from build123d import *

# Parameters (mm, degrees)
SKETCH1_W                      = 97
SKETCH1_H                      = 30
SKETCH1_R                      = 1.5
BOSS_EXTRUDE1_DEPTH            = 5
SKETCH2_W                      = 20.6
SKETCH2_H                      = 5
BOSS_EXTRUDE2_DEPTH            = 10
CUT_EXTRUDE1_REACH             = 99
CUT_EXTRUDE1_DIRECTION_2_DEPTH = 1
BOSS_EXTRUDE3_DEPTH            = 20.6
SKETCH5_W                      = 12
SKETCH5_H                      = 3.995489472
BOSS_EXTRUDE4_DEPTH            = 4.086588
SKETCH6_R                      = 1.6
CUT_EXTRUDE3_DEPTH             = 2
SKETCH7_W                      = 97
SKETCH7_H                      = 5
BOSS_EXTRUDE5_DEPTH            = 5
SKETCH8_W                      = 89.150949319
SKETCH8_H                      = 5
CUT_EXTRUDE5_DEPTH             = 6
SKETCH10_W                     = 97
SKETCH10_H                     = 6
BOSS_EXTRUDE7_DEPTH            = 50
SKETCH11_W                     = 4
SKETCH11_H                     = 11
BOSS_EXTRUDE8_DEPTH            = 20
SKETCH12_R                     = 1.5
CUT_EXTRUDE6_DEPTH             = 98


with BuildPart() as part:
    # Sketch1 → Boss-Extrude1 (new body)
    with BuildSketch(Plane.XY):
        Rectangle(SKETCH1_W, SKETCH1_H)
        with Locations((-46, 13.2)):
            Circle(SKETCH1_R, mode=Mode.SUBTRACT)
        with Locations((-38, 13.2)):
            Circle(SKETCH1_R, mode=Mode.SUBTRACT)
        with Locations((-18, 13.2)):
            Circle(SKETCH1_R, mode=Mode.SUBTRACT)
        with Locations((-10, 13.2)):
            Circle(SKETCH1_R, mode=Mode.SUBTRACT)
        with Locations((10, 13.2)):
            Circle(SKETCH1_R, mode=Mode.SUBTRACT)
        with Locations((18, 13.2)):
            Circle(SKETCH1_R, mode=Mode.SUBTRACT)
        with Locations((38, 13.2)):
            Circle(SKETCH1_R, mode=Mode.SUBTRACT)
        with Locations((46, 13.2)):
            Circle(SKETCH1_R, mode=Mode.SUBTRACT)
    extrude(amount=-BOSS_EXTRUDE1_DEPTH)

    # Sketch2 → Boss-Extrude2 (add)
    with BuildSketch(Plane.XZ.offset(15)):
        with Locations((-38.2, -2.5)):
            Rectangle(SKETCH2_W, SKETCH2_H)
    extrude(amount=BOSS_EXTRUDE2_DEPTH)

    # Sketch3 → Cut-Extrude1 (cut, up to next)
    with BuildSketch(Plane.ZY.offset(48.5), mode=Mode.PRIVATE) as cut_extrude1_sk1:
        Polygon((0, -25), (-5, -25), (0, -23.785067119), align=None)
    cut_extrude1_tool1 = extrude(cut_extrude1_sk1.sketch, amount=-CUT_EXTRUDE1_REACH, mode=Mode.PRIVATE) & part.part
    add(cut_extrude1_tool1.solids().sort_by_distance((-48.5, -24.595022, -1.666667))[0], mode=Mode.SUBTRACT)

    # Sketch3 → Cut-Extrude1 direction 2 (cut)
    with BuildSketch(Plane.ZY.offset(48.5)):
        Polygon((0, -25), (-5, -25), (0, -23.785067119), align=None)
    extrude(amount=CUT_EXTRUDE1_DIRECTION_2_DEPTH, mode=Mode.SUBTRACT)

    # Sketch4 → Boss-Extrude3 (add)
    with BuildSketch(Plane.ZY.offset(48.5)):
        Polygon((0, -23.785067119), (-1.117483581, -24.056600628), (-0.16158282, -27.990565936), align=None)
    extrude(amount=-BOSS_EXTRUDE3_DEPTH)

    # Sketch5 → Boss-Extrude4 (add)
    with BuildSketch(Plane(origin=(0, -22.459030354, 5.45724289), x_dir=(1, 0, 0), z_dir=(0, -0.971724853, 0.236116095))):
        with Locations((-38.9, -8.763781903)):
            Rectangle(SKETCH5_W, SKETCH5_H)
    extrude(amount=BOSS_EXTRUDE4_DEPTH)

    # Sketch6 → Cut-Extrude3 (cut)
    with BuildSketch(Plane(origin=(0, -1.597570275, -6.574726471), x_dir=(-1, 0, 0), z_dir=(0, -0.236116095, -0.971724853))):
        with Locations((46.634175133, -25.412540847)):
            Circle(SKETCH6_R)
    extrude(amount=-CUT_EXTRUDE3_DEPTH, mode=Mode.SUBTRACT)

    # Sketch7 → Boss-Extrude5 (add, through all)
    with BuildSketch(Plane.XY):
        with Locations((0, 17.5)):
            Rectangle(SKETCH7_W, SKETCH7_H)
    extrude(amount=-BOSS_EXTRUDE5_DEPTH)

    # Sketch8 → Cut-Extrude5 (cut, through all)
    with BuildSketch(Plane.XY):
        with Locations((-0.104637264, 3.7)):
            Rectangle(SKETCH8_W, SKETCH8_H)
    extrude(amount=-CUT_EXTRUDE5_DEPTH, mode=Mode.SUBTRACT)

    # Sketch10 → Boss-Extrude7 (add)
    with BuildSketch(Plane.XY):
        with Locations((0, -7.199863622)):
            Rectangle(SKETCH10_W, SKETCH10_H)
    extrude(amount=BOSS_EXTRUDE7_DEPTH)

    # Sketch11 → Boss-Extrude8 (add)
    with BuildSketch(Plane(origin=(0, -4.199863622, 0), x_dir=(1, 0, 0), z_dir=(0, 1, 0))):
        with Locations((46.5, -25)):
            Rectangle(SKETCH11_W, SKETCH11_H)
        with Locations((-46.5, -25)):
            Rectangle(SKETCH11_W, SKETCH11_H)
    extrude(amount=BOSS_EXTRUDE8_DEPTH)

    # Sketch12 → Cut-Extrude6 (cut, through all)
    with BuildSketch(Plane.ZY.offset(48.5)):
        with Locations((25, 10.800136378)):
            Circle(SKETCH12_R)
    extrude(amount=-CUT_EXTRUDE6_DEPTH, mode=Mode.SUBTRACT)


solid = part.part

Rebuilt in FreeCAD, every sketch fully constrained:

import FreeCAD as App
import Part
import Sketcher
from FreeCAD import Vector

doc = App.newDocument("Part")
body = doc.addObject("PartDesign::Body", "Body")

sketch1 = body.newObject("Sketcher::SketchObject", "Sketch")
sketch1.AttachmentSupport = (doc.getObject("XY_Plane"), [""])
sketch1.MapMode = "FlatFace"
sketch1.addGeometry([
    Part.LineSegment(Vector(-48.5, 15, 0), Vector(-48.5, -15, 0)),
    Part.LineSegment(Vector(-48.5, -15, 0), Vector(48.5, -15, 0)),
    Part.LineSegment(Vector(48.5, -15, 0), Vector(48.5, 15, 0)),
    Part.LineSegment(Vector(48.5, 15, 0), Vector(-48.5, 15, 0)),
    Part.Circle(Vector(-46, 13.2, 0), Vector(0, 0, 1), 1.5),
    Part.Circle(Vector(-38, 13.2, 0), Vector(0, 0, 1), 1.5),
    Part.Circle(Vector(-18, 13.2, 0), Vector(0, 0, 1), 1.5),
    Part.Circle(Vector(-10, 13.2, 0), Vector(0, 0, 1), 1.5),
    Part.Circle(Vector(10, 13.2, 0), Vector(0, 0, 1), 1.5),
    Part.Circle(Vector(18, 13.2, 0), Vector(0, 0, 1), 1.5),
    Part.Circle(Vector(38, 13.2, 0), Vector(0, 0, 1), 1.5),
    Part.Circle(Vector(46, 13.2, 0), Vector(0, 0, 1), 1.5),
], False)
sketch1.addConstraint([
    Sketcher.Constraint("Coincident", 0, 2, 1, 1),
    Sketcher.Constraint("Coincident", 1, 2, 2, 1),
    Sketcher.Constraint("Coincident", 2, 2, 3, 1),
    Sketcher.Constraint("Coincident", 3, 2, 0, 1),
    Sketcher.Constraint("Vertical", 0),
    Sketcher.Constraint("Horizontal", 1),
    Sketcher.Constraint("Vertical", 2),
    Sketcher.Constraint("Horizontal", 3),
    Sketcher.Constraint("Equal", 4, 5),
    Sketcher.Constraint("Equal", 5, 6),
    Sketcher.Constraint("Equal", 6, 7),
    Sketcher.Constraint("Equal", 7, 8),
    Sketcher.Constraint("Equal", 8, 9),
    Sketcher.Constraint("Equal", 9, 10),
    Sketcher.Constraint("Equal", 10, 11),
    Sketcher.Constraint("Symmetric", 0, 2, 2, 2, -1, 1),
    Sketcher.Constraint("Symmetric", 7, 3, 8, 3, -2),
    Sketcher.Constraint("Symmetric", 6, 3, 9, 3, -2),
    Sketcher.Constraint("Symmetric", 5, 3, 10, 3, -2),
    Sketcher.Constraint("Symmetric", 4, 3, 11, 3, -2),
    Sketcher.Constraint("Horizontal", 4, 3, 5, 3),
    Sketcher.Constraint("Horizontal", 5, 3, 6, 3),
    Sketcher.Constraint("Horizontal", 6, 3, 7, 3),
    Sketcher.Constraint("Diameter", 4, 3.0),
    Sketcher.Constraint("DistanceX", 1, 1, 1, 2, 97.0),
    Sketcher.Constraint("DistanceY", 0, 2, 0, 1, 30.0),
    Sketcher.Constraint("DistanceX", 4, 3, -1, 1, 46.0),
    Sketcher.Constraint("DistanceX", 5, 3, -1, 1, 38.0),
    Sketcher.Constraint("DistanceX", 6, 3, -1, 1, 18.0),
    Sketcher.Constraint("DistanceX", 7, 3, -1, 1, 10.0),
    Sketcher.Constraint("DistanceY", -1, 1, 4, 3, 13.2),
])
pad1 = body.newObject("PartDesign::Pad", "Pad")
pad1.Profile = sketch1
pad1.Length = 5
pad1.Reversed = True

sketch2 = body.newObject("Sketcher::SketchObject", "Sketch001")
sketch2.AttachmentSupport = (doc.getObject("XZ_Plane"), [""])
sketch2.MapMode = "FlatFace"
sketch2.AttachmentOffset = App.Placement(Vector(0, 0, 15), App.Rotation())
sketch2.addGeometry([
    Part.LineSegment(Vector(-48, 0, 0), Vector(-48, -5, 0)),
    Part.LineSegment(Vector(-48, -5, 0), Vector(-28, -5, 0)),
    Part.LineSegment(Vector(-28, -5, 0), Vector(-28, 0, 0)),
    Part.LineSegment(Vector(-28, 0, 0), Vector(-48, 0, 0)),
], False)
sketch2.addConstraint([
    Sketcher.Constraint("Coincident", 0, 2, 1, 1),
    Sketcher.Constraint("Coincident", 1, 2, 2, 1),
    Sketcher.Constraint("Coincident", 2, 2, 3, 1),
    Sketcher.Constraint("Coincident", 3, 2, 0, 1),
    Sketcher.Constraint("Vertical", 0),
    Sketcher.Constraint("Horizontal", 1),
    Sketcher.Constraint("Vertical", 2),
    Sketcher.Constraint("Horizontal", 3),
    Sketcher.Constraint("PointOnObject", 2, 2, -1),
    Sketcher.Constraint("DistanceY", 0, 2, 0, 1, 5.0),
    Sketcher.Constraint("DistanceX", 1, 1, 1, 2, 20.6),
    Sketcher.Constraint("DistanceX", 0, 2, -1, 1, 48.5),
])
pad2 = body.newObject("PartDesign::Pad", "Pad001")
pad2.Profile = sketch2
pad2.Length = 10

sketch3 = body.newObject("Sketcher::SketchObject", "Sketch002")
sketch3.AttachmentSupport = (doc.getObject("YZ_Plane"), [""])
sketch3.MapMode = "FlatFace"
sketch3.AttachmentOffset = App.Placement(Vector(0, 0, -48.5), App.Rotation())
sketch3.addGeometry([
    Part.LineSegment(Vector(-25, -5, 0), Vector(-25, 0, 0)),
    Part.LineSegment(Vector(-25, 0, 0), Vector(-23.8, 0, 0)),
    Part.LineSegment(Vector(-23.8, 0, 0), Vector(-25, -5, 0)),
], False)
sketch3.addConstraint([
    Sketcher.Constraint("Coincident", 0, 2, 1, 1),
    Sketcher.Constraint("Coincident", 1, 2, 2, 1),
    Sketcher.Constraint("Coincident", 2, 2, 0, 1),
    Sketcher.Constraint("Vertical", 0),
    Sketcher.Constraint("Horizontal", 1),
    Sketcher.Constraint("PointOnObject", 0, 2, -1),
    Sketcher.Constraint("DistanceY", 0, 1, 0, 2, 5.0),
    Sketcher.Constraint("DistanceX", 0, 2, -1, 1, 25.0),
    Sketcher.Constraint("Distance", 2, 5.145489),
])
pocket1 = body.newObject("PartDesign::Pocket", "Pocket")
pocket1.Profile = sketch3
pocket1.Type = "UpToFirst"
pocket1.Reversed = True

sketch4 = body.newObject("Sketcher::SketchObject", "Sketch003")
sketch4.AttachmentSupport = (doc.getObject("YZ_Plane"), [""])
sketch4.MapMode = "FlatFace"
sketch4.AttachmentOffset = App.Placement(Vector(0, 0, -48.5), App.Rotation())
sketch4.addGeometry([
    Part.LineSegment(Vector(-25, -5, 0), Vector(-25, 0, 0)),
    Part.LineSegment(Vector(-25, 0, 0), Vector(-23.8, 0, 0)),
    Part.LineSegment(Vector(-23.8, 0, 0), Vector(-25, -5, 0)),
], False)
sketch4.addConstraint([
    Sketcher.Constraint("Coincident", 0, 2, 1, 1),
    Sketcher.Constraint("Coincident", 1, 2, 2, 1),
    Sketcher.Constraint("Coincident", 2, 2, 0, 1),
    Sketcher.Constraint("Vertical", 0),
    Sketcher.Constraint("Horizontal", 1),
    Sketcher.Constraint("PointOnObject", 0, 2, -1),
    Sketcher.Constraint("DistanceY", 0, 1, 0, 2, 5.0),
    Sketcher.Constraint("DistanceX", 0, 2, -1, 1, 25.0),
    Sketcher.Constraint("Distance", 2, 5.145489),
])
pocket2 = body.newObject("PartDesign::Pocket", "Pocket001")
pocket2.Profile = sketch4
pocket2.Length = 1

sketch5 = body.newObject("Sketcher::SketchObject", "Sketch004")
sketch5.AttachmentSupport = (doc.getObject("YZ_Plane"), [""])
sketch5.MapMode = "FlatFace"
sketch5.AttachmentOffset = App.Placement(Vector(0, 0, -48.5), App.Rotation())
sketch5.addGeometry([
    Part.LineSegment(Vector(-23.8, 0, 0), Vector(-24.1, -1.1, 0)),
    Part.LineSegment(Vector(-24.1, -1.1, 0), Vector(-28, -0.2, 0)),
    Part.LineSegment(Vector(-28, -0.2, 0), Vector(-23.8, 0, 0)),
], False)
sketch5.addConstraint([
    Sketcher.Constraint("Coincident", 0, 2, 1, 1),
    Sketcher.Constraint("Coincident", 1, 2, 2, 1),
    Sketcher.Constraint("Coincident", 2, 2, 0, 1),
    Sketcher.Constraint("PointOnObject", 2, 2, -1),
    Sketcher.Constraint("Perpendicular", 0, 1),
    Sketcher.Constraint("Distance", 0, 1.15),
    Sketcher.Constraint("Distance", 2, 4.208602),
    Sketcher.Constraint("DistanceX", 0, 2, -1, 1, 24.056601),
    Sketcher.Constraint("DistanceY", 0, 2, 1, 2, 0.955901),
])
pad3 = body.newObject("PartDesign::Pad", "Pad002")
pad3.Profile = sketch5
pad3.Length = 20.6

sketch6 = body.newObject("Sketcher::SketchObject", "Sketch005")
sketch6.Placement = App.Placement(Vector(0, -22.45903, 5.457243), App.Rotation(Vector(1, 0, 0), Vector(0, 0.236116095, 0.971724853), Vector(0, -0.971724853, 0.236116095), "ZXY"))
sketch6.addGeometry([
    Part.LineSegment(Vector(-44.9, -6.8, 0), Vector(-44.9, -10.8, 0)),
    Part.LineSegment(Vector(-44.9, -10.8, 0), Vector(-32.9, -10.8, 0)),
    Part.LineSegment(Vector(-32.9, -10.8, 0), Vector(-32.9, -6.8, 0)),
    Part.LineSegment(Vector(-32.9, -6.8, 0), Vector(-44.9, -6.8, 0)),
], False)
sketch6.addConstraint([
    Sketcher.Constraint("Coincident", 0, 2, 1, 1),
    Sketcher.Constraint("Coincident", 1, 2, 2, 1),
    Sketcher.Constraint("Coincident", 2, 2, 3, 1),
    Sketcher.Constraint("Coincident", 3, 2, 0, 1),
    Sketcher.Constraint("Vertical", 0),
    Sketcher.Constraint("Horizontal", 1),
    Sketcher.Constraint("Vertical", 2),
    Sketcher.Constraint("Horizontal", 3),
    Sketcher.Constraint("DistanceX", 1, 1, 1, 2, 12.0),
    Sketcher.Constraint("DistanceX", 0, 2, -1, 1, 44.9),
    Sketcher.Constraint("DistanceY", 0, 2, 0, 1, 3.995489),
    Sketcher.Constraint("DistanceY", 0, 2, -1, 1, 10.761527),
])
pad4 = body.newObject("PartDesign::Pad", "Pad003")
pad4.Profile = sketch6
pad4.Length = 4.086588

sketch7 = body.newObject("Sketcher::SketchObject", "Sketch006")
sketch7.Placement = App.Placement(Vector(0, -1.59757, -6.574726), App.Rotation(Vector(-1, 0, 0), Vector(0, 0.971724853, -0.236116095), Vector(0, -0.236116095, -0.971724853), "ZXY"))
sketch7.addGeometry(Part.Circle(Vector(46.6, -25.4, 0), Vector(0, 0, 1), 1.6), False)
sketch7.addConstraint([
    Sketcher.Constraint("Diameter", 0, 3.2),
    Sketcher.Constraint("DistanceY", 0, 3, -1, 1, 25.412541),
    Sketcher.Constraint("DistanceX", -1, 1, 0, 3, 46.634175),
])
pocket3 = body.newObject("PartDesign::Pocket", "Pocket002")
pocket3.Profile = sketch7
pocket3.Length = 2

sketch8 = body.newObject("Sketcher::SketchObject", "Sketch007")
sketch8.AttachmentSupport = (doc.getObject("XY_Plane"), [""])
sketch8.MapMode = "FlatFace"
sketch8.addGeometry([
    Part.LineSegment(Vector(-48, 20, 0), Vector(-48, 15, 0)),
    Part.LineSegment(Vector(-48, 15, 0), Vector(48, 15, 0)),
    Part.LineSegment(Vector(48, 15, 0), Vector(48, 20, 0)),
    Part.LineSegment(Vector(48, 20, 0), Vector(-48, 20, 0)),
], False)
sketch8.addConstraint([
    Sketcher.Constraint("Coincident", 0, 2, 1, 1),
    Sketcher.Constraint("Coincident", 1, 2, 2, 1),
    Sketcher.Constraint("Coincident", 2, 2, 3, 1),
    Sketcher.Constraint("Coincident", 3, 2, 0, 1),
    Sketcher.Constraint("Vertical", 0),
    Sketcher.Constraint("Horizontal", 1),
    Sketcher.Constraint("Vertical", 2),
    Sketcher.Constraint("Horizontal", 3),
    Sketcher.Constraint("DistanceX", 1, 1, 1, 2, 97.0),
    Sketcher.Constraint("DistanceY", 0, 2, 0, 1, 5.0),
    Sketcher.Constraint("DistanceY", -1, 1, 0, 2, 15.0),
    Sketcher.Constraint("DistanceX", 0, 2, -1, 1, 48.5),
])
pad5 = body.newObject("PartDesign::Pad", "Pad004")
pad5.Profile = sketch8
pad5.Length = 5
pad5.Reversed = True

sketch9 = body.newObject("Sketcher::SketchObject", "Sketch008")
sketch9.AttachmentSupport = (doc.getObject("XY_Plane"), [""])
sketch9.MapMode = "FlatFace"
sketch9.addGeometry([
    Part.LineSegment(Vector(-45, 6, 0), Vector(-45, 1, 0)),
    Part.LineSegment(Vector(-45, 1, 0), Vector(44, 1, 0)),
    Part.LineSegment(Vector(44, 1, 0), Vector(44, 6, 0)),
    Part.LineSegment(Vector(44, 6, 0), Vector(-45, 6, 0)),
], False)
sketch9.addConstraint([
    Sketcher.Constraint("Coincident", 0, 2, 1, 1),
    Sketcher.Constraint("Coincident", 1, 2, 2, 1),
    Sketcher.Constraint("Coincident", 2, 2, 3, 1),
    Sketcher.Constraint("Coincident", 3, 2, 0, 1),
    Sketcher.Constraint("Vertical", 0),
    Sketcher.Constraint("Horizontal", 1),
    Sketcher.Constraint("Vertical", 2),
    Sketcher.Constraint("Horizontal", 3),
    Sketcher.Constraint("DistanceY", 0, 2, 0, 1, 5.0),
    Sketcher.Constraint("DistanceY", -1, 1, 0, 2, 1.2),
    Sketcher.Constraint("DistanceX", 1, 1, 1, 2, 89.150949),
    Sketcher.Constraint("DistanceX", 0, 2, -1, 1, 44.680112),
])
pocket4 = body.newObject("PartDesign::Pocket", "Pocket003")
pocket4.Profile = sketch9
pocket4.Type = "ThroughAll"

sketch10 = body.newObject("Sketcher::SketchObject", "Sketch009")
sketch10.AttachmentSupport = (doc.getObject("XY_Plane"), [""])
sketch10.MapMode = "FlatFace"
sketch10.addGeometry([
    Part.LineSegment(Vector(-48, -4, 0), Vector(-48, -10, 0)),
    Part.LineSegment(Vector(-48, -10, 0), Vector(48, -10, 0)),
    Part.LineSegment(Vector(48, -10, 0), Vector(48, -4, 0)),
    Part.LineSegment(Vector(48, -4, 0), Vector(-48, -4, 0)),
], False)
sketch10.addConstraint([
    Sketcher.Constraint("Coincident", 0, 2, 1, 1),
    Sketcher.Constraint("Coincident", 1, 2, 2, 1),
    Sketcher.Constraint("Coincident", 2, 2, 3, 1),
    Sketcher.Constraint("Coincident", 3, 2, 0, 1),
    Sketcher.Constraint("Vertical", 0),
    Sketcher.Constraint("Horizontal", 1),
    Sketcher.Constraint("Vertical", 2),
    Sketcher.Constraint("Horizontal", 3),
    Sketcher.Constraint("DistanceX", 1, 1, 1, 2, 97.0),
    Sketcher.Constraint("DistanceY", 0, 2, 0, 1, 6.0),
    Sketcher.Constraint("DistanceX", 0, 2, -1, 1, 48.5),
    Sketcher.Constraint("DistanceY", 0, 2, -1, 1, 10.199864),
])
pad6 = body.newObject("PartDesign::Pad", "Pad005")
pad6.Profile = sketch10
pad6.Length = 50

sketch11 = body.newObject("Sketcher::SketchObject", "Sketch010")
sketch11.AttachmentSupport = (doc.getObject("XZ_Plane"), [""])
sketch11.MapMode = "FlatFace"
sketch11.AttachmentOffset = App.Placement(Vector(0, 0, 4.199864), App.Rotation())
sketch11.addGeometry([
    Part.LineSegment(Vector(44.5, 19.5, 0), Vector(44.5, 30.5, 0)),
    Part.LineSegment(Vector(44.5, 30.5, 0), Vector(48.5, 30.5, 0)),
    Part.LineSegment(Vector(48.5, 30.5, 0), Vector(48.5, 19.5, 0)),
    Part.LineSegment(Vector(48.5, 19.5, 0), Vector(44.5, 19.5, 0)),
    Part.LineSegment(Vector(-48.5, 19.5, 0), Vector(-48.5, 30.5, 0)),
    Part.LineSegment(Vector(-48.5, 30.5, 0), Vector(-44.5, 30.5, 0)),
    Part.LineSegment(Vector(-44.5, 30.5, 0), Vector(-44.5, 19.5, 0)),
    Part.LineSegment(Vector(-44.5, 19.5, 0), Vector(-48.5, 19.5, 0)),
], False)
sketch11.addConstraint([
    Sketcher.Constraint("Coincident", 0, 2, 1, 1),
    Sketcher.Constraint("Coincident", 1, 2, 2, 1),
    Sketcher.Constraint("Coincident", 2, 2, 3, 1),
    Sketcher.Constraint("Coincident", 3, 2, 0, 1),
    Sketcher.Constraint("Coincident", 4, 2, 5, 1),
    Sketcher.Constraint("Coincident", 5, 2, 6, 1),
    Sketcher.Constraint("Coincident", 6, 2, 7, 1),
    Sketcher.Constraint("Coincident", 7, 2, 4, 1),
    Sketcher.Constraint("Vertical", 0),
    Sketcher.Constraint("Horizontal", 1),
    Sketcher.Constraint("Vertical", 2),
    Sketcher.Constraint("Horizontal", 3),
    Sketcher.Constraint("Vertical", 4),
    Sketcher.Constraint("Horizontal", 5),
    Sketcher.Constraint("Vertical", 6),
    Sketcher.Constraint("Horizontal", 7),
    Sketcher.Constraint("Symmetric", 1, 2, 4, 2, -2),
    Sketcher.Constraint("Symmetric", 3, 2, 6, 2, -2),
    Sketcher.Constraint("DistanceX", 1, 1, 1, 2, 4.0),
    Sketcher.Constraint("DistanceY", 0, 1, 0, 2, 11.0),
    Sketcher.Constraint("DistanceX", 4, 2, 0, 2, 93.0),
    Sketcher.Constraint("DistanceY", -1, 1, 0, 2, 30.5),
])
pad7 = body.newObject("PartDesign::Pad", "Pad006")
pad7.Profile = sketch11
pad7.Length = 20
pad7.Reversed = True

sketch12 = body.newObject("Sketcher::SketchObject", "Sketch011")
sketch12.AttachmentSupport = (doc.getObject("YZ_Plane"), [""])
sketch12.MapMode = "FlatFace"
sketch12.AttachmentOffset = App.Placement(Vector(0, 0, -48.5), App.Rotation())
sketch12.addGeometry(Part.Circle(Vector(10.8, 25, 0), Vector(0, 0, 1), 1.5), False)
sketch12.addConstraint([
    Sketcher.Constraint("Diameter", 0, 3.0),
    Sketcher.Constraint("DistanceY", -1, 1, 0, 3, 25.0),
    Sketcher.Constraint("DistanceX", -1, 1, 0, 3, 10.800136),
])
pocket5 = body.newObject("PartDesign::Pocket", "Pocket004")
pocket5.Profile = sketch12
pocket5.Type = "ThroughAll"
pocket5.Reversed = True

doc.recompute()
